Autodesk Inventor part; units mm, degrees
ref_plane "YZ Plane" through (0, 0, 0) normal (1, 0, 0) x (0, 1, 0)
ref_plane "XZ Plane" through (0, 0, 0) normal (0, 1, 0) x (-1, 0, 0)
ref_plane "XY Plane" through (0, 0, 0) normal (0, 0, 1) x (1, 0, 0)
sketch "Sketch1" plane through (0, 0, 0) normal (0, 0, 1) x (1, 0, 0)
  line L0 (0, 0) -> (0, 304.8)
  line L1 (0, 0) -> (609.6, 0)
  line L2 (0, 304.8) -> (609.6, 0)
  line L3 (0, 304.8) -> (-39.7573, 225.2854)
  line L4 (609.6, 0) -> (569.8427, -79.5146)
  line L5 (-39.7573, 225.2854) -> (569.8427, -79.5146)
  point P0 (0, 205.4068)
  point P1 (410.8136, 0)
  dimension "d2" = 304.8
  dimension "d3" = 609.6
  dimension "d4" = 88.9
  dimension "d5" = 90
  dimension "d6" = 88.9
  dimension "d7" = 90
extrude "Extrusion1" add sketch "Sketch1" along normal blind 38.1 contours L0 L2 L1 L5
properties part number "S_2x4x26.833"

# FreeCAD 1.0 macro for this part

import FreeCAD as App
import Part
import Sketcher
Q = App.Units.Quantity


def add_polygon(sketch, points):
    """Adds a closed chain of lines whose ends are joined by coincident constraints."""
    first, n = sketch.GeometryCount, len(points)
    for a, b in zip(points, points[1:] + points[:1]):
        sketch.addGeometry(Part.LineSegment(App.Vector(*a, 0), App.Vector(*b, 0)), False)
    for i in range(n):
        sketch.addConstraint(Sketcher.Constraint("Coincident", first + i, 2, first + (i + 1) % n, 1))

doc = App.newDocument("Part")
body = doc.addObject("PartDesign::Body", "Body")

sketch1 = body.newObject("Sketcher::SketchObject", "Sketch")
sketch1.AttachmentSupport = (doc.getObject("XY_Plane"), [""])
sketch1.MapMode = "FlatFace"
add_polygon(sketch1, [(0, 305), (0, 205), (411, 0), (610, 0)])
sketch1.addConstraint(Sketcher.Constraint("Vertical", 0))
sketch1.addConstraint(Sketcher.Constraint("Horizontal", 2))
sketch1.addConstraint(Sketcher.Constraint("PointOnObject", 0, 2, -2))
sketch1.addConstraint(Sketcher.Constraint("PointOnObject", 1, 2, -1))
sketch1.addConstraint(Sketcher.Constraint("Parallel", 1, 3))
sketch1.addConstraint(Sketcher.Constraint("DistanceX", -1, 1, 2, 2, Q("24 in")))
sketch1.addConstraint(Sketcher.Constraint("DistanceY", -1, 1, 3, 2, Q("12 in")))
sketch1.addConstraint(Sketcher.Constraint("DistanceX", 2, 1, 2, 2, Q("198.7865 mm")))
pad1 = body.newObject("PartDesign::Pad", "Pad")
pad1.Profile = sketch1
pad1.Length = Q("1.5 in")

doc.recompute()
